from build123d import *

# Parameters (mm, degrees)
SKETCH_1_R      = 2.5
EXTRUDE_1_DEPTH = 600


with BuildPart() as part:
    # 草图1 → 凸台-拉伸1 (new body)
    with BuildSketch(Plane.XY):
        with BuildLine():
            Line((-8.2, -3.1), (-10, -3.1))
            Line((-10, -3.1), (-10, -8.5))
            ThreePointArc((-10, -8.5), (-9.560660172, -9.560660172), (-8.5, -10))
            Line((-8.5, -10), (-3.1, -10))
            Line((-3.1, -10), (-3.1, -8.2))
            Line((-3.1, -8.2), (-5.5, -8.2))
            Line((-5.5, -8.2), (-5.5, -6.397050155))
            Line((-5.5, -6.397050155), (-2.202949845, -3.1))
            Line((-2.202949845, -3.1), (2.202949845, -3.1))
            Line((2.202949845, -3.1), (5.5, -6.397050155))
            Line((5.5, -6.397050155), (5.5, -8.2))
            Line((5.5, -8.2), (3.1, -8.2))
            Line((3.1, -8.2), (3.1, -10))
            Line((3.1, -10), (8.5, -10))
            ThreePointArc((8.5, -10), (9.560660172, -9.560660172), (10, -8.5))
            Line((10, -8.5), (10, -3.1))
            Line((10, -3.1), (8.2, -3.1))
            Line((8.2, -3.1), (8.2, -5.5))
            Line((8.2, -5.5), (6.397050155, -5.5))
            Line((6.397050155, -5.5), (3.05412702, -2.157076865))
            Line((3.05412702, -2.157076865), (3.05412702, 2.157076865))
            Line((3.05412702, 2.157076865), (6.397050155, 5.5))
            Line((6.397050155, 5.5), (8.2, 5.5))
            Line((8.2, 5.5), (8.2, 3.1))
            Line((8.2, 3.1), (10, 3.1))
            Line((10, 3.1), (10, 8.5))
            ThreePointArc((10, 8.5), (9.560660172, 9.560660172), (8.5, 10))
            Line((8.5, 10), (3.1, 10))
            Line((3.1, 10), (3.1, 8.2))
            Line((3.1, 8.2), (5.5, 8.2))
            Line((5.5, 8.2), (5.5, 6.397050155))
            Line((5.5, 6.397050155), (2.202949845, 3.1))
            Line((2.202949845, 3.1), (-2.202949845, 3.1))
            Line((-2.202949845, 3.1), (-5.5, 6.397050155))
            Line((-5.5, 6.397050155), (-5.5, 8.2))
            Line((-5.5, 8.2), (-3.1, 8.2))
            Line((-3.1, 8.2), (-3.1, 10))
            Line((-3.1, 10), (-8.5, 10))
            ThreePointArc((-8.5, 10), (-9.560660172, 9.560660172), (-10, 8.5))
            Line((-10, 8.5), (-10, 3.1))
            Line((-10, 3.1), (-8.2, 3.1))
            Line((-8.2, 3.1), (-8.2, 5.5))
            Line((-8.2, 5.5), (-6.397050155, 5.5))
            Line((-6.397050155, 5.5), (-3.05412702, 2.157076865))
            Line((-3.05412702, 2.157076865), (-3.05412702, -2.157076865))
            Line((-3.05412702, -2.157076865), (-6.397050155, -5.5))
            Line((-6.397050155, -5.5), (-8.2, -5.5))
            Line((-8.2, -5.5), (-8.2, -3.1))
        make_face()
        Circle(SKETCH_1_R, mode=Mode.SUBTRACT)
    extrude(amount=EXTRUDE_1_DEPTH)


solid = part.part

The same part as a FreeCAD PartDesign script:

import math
import FreeCAD as App
import Part
import Sketcher

doc = App.newDocument("Part")
params = doc.addObject("Spreadsheet::Sheet", "Params")
for row, (alias, value) in enumerate([
    ("sketch1_diameter", "5 mm"),
    ("sketch1_radius", "1.5 mm"),
    ("sketch1_width", "1.8 mm"),
    ("sketch1_width2", "5.4 mm"),
    ("sketch1_width3", "2.4 mm"),
    ("pad1_length", "600 mm"),
], start=1):
    params.set(f"A{row}", alias)
    params.set(f"B{row}", "=" + value)
    params.setAlias(f"B{row}", alias)

body = doc.addObject("PartDesign::Body", "Body")

# Sketch on XY plane
sketch1 = body.newObject("Sketcher::SketchObject", "Sketch")
sketch1.AttachmentSupport = (doc.getObject("XY_Plane"), [""])
sketch1.MapMode = "FlatFace"
sketch1.addGeometry(Part.LineSegment(App.Vector(-8.2, -3.1, 0), App.Vector(-10, -3.1, 0)), False)
sketch1.addGeometry(Part.LineSegment(App.Vector(-10, -3.1, 0), App.Vector(-10, -8.5, 0)), False)
sketch1.addGeometry(Part.ArcOfCircle(Part.Circle(App.Vector(-8.5, -8.5, 0), App.Vector(0, 0, 1), 1.5), math.radians(180), math.radians(270)), False)
sketch1.addGeometry(Part.LineSegment(App.Vector(-8.5, -10, 0), App.Vector(-3.1, -10, 0)), False)
sketch1.addGeometry(Part.LineSegment(App.Vector(-3.1, -10, 0), App.Vector(-3.1, -8.2, 0)), False)
sketch1.addGeometry(Part.LineSegment(App.Vector(-3.1, -8.2, 0), App.Vector(-5.5, -8.2, 0)), False)
sketch1.addGeometry(Part.LineSegment(App.Vector(-5.5, -8.2, 0), App.Vector(-5.5, -6.4, 0)), False)
sketch1.addGeometry(Part.LineSegment(App.Vector(-5.5, -6.4, 0), App.Vector(-2.2, -3.1, 0)), False)
sketch1.addGeometry(Part.LineSegment(App.Vector(-2.2, -3.1, 0), App.Vector(2.2, -3.1, 0)), False)
sketch1.addGeometry(Part.LineSegment(App.Vector(2.2, -3.1, 0), App.Vector(5.5, -6.4, 0)), False)
sketch1.addGeometry(Part.LineSegment(App.Vector(5.5, -6.4, 0), App.Vector(5.5, -8.2, 0)), False)
sketch1.addGeometry(Part.LineSegment(App.Vector(5.5, -8.2, 0), App.Vector(3.1, -8.2, 0)), False)
sketch1.addGeometry(Part.LineSegment(App.Vector(3.1, -8.2, 0), App.Vector(3.1, -10, 0)), False)
sketch1.addGeometry(Part.LineSegment(App.Vector(3.1, -10, 0), App.Vector(8.5, -10, 0)), False)
sketch1.addGeometry(Part.ArcOfCircle(Part.Circle(App.Vector(8.5, -8.5, 0), App.Vector(0, 0, 1), 1.5), math.radians(-90), math.radians(0)), False)
sketch1.addGeometry(Part.LineSegment(App.Vector(10, -8.5, 0), App.Vector(10, -3.1, 0)), False)
sketch1.addGeometry(Part.LineSegment(App.Vector(10, -3.1, 0), App.Vector(8.2, -3.1, 0)), False)
sketch1.addGeometry(Part.LineSegment(App.Vector(8.2, -3.1, 0), App.Vector(8.2, -5.5, 0)), False)
sketch1.addGeometry(Part.LineSegment(App.Vector(8.2, -5.5, 0), App.Vector(6.4, -5.5, 0)), False)
sketch1.addGeometry(Part.LineSegment(App.Vector(6.4, -5.5, 0), App.Vector(3.1, -2.2, 0)), False)
sketch1.addGeometry(Part.LineSegment(App.Vector(3.1, -2.2, 0), App.Vector(3.1, 2.2, 0)), False)
sketch1.addGeometry(Part.LineSegment(App.Vector(3.1, 2.2, 0), App.Vector(6.4, 5.5, 0)), False)
sketch1.addGeometry(Part.LineSegment(App.Vector(6.4, 5.5, 0), App.Vector(8.2, 5.5, 0)), False)
sketch1.addGeometry(Part.LineSegment(App.Vector(8.2, 5.5, 0), App.Vector(8.2, 3.1, 0)), False)
sketch1.addGeometry(Part.LineSegment(App.Vector(8.2, 3.1, 0), App.Vector(10, 3.1, 0)), False)
sketch1.addGeometry(Part.LineSegment(App.Vector(10, 3.1, 0), App.Vector(10, 8.5, 0)), False)
sketch1.addGeometry(Part.ArcOfCircle(Part.Circle(App.Vector(8.5, 8.5, 0), App.Vector(0, 0, 1), 1.5), math.radians(0), math.radians(90)), False)
sketch1.addGeometry(Part.LineSegment(App.Vector(8.5, 10, 0), App.Vector(3.1, 10, 0)), False)
sketch1.addGeometry(Part.LineSegment(App.Vector(3.1, 10, 0), App.Vector(3.1, 8.2, 0)), False)
sketch1.addGeometry(Part.LineSegment(App.Vector(3.1, 8.2, 0), App.Vector(5.5, 8.2, 0)), False)
sketch1.addGeometry(Part.LineSegment(App.Vector(5.5, 8.2, 0), App.Vector(5.5, 6.4, 0)), False)
sketch1.addGeometry(Part.LineSegment(App.Vector(5.5, 6.4, 0), App.Vector(2.2, 3.1, 0)), False)
sketch1.addGeometry(Part.LineSegment(App.Vector(2.2, 3.1, 0), App.Vector(-2.2, 3.1, 0)), False)
sketch1.addGeometry(Part.LineSegment(App.Vector(-2.2, 3.1, 0), App.Vector(-5.5, 6.4, 0)), False)
sketch1.addGeometry(Part.LineSegment(App.Vector(-5.5, 6.4, 0), App.Vector(-5.5, 8.2, 0)), False)
sketch1.addGeometry(Part.LineSegment(App.Vector(-5.5, 8.2, 0), App.Vector(-3.1, 8.2, 0)), False)
sketch1.addGeometry(Part.LineSegment(App.Vector(-3.1, 8.2, 0), App.Vector(-3.1, 10, 0)), False)
sketch1.addGeometry(Part.LineSegment(App.Vector(-3.1, 10, 0), App.Vector(-8.5, 10, 0)), False)
sketch1.addGeometry(Part.ArcOfCircle(Part.Circle(App.Vector(-8.5, 8.5, 0), App.Vector(0, 0, 1), 1.5), math.radians(90), math.radians(180)), False)
sketch1.addGeometry(Part.LineSegment(App.Vector(-10, 8.5, 0), App.Vector(-10, 3.1, 0)), False)
sketch1.addGeometry(Part.LineSegment(App.Vector(-10, 3.1, 0), App.Vector(-8.2, 3.1, 0)), False)
sketch1.addGeometry(Part.LineSegment(App.Vector(-8.2, 3.1, 0), App.Vector(-8.2, 5.5, 0)), False)
sketch1.addGeometry(Part.LineSegment(App.Vector(-8.2, 5.5, 0), App.Vector(-6.4, 5.5, 0)), False)
sketch1.addGeometry(Part.LineSegment(App.Vector(-6.4, 5.5, 0), App.Vector(-3.1, 2.2, 0)), False)
sketch1.addGeometry(Part.LineSegment(App.Vector(-3.1, 2.2, 0), App.Vector(-3.1, -2.2, 0)), False)
sketch1.addGeometry(Part.LineSegment(App.Vector(-3.1, -2.2, 0), App.Vector(-6.4, -5.5, 0)), False)
sketch1.addGeometry(Part.LineSegment(App.Vector(-6.4, -5.5, 0), App.Vector(-8.2, -5.5, 0)), False)
sketch1.addGeometry(Part.LineSegment(App.Vector(-8.2, -5.5, 0), App.Vector(-8.2, -3.1, 0)), False)
sketch1.addGeometry(Part.Circle(App.Vector(0, 0, 0), App.Vector(0, 0, 1), 2.5), False)
sketch1.addConstraint(Sketcher.Constraint("Coincident", 0, 2, 1, 1))
sketch1.addConstraint(Sketcher.Constraint("Tangent", 1, 2, 2, 1))
sketch1.addConstraint(Sketcher.Constraint("Tangent", 2, 2, 3, 1))
sketch1.addConstraint(Sketcher.Constraint("Coincident", 3, 2, 4, 1))
sketch1.addConstraint(Sketcher.Constraint("Coincident", 4, 2, 5, 1))
sketch1.addConstraint(Sketcher.Constraint("Coincident", 5, 2, 6, 1))
sketch1.addConstraint(Sketcher.Constraint("Coincident", 6, 2, 7, 1))
sketch1.addConstraint(Sketcher.Constraint("Coincident", 7, 2, 8, 1))
sketch1.addConstraint(Sketcher.Constraint("Coincident", 8, 2, 9, 1))
sketch1.addConstraint(Sketcher.Constraint("Coincident", 9, 2, 10, 1))
sketch1.addConstraint(Sketcher.Constraint("Coincident", 10, 2, 11, 1))
sketch1.addConstraint(Sketcher.Constraint("Coincident", 11, 2, 12, 1))
sketch1.addConstraint(Sketcher.Constraint("Coincident", 12, 2, 13, 1))
sketch1.addConstraint(Sketcher.Constraint("Tangent", 13, 2, 14, 1))
sketch1.addConstraint(Sketcher.Constraint("Tangent", 14, 2, 15, 1))
sketch1.addConstraint(Sketcher.Constraint("Coincident", 15, 2, 16, 1))
sketch1.addConstraint(Sketcher.Constraint("Coincident", 16, 2, 17, 1))
sketch1.addConstraint(Sketcher.Constraint("Coincident", 17, 2, 18, 1))
sketch1.addConstraint(Sketcher.Constraint("Coincident", 18, 2, 19, 1))
sketch1.addConstraint(Sketcher.Constraint("Coincident", 19, 2, 20, 1))
sketch1.addConstraint(Sketcher.Constraint("Coincident", 20, 2, 21, 1))
sketch1.addConstraint(Sketcher.Constraint("Coincident", 21, 2, 22, 1))
sketch1.addConstraint(Sketcher.Constraint("Coincident", 22, 2, 23, 1))
sketch1.addConstraint(Sketcher.Constraint("Coincident", 23, 2, 24, 1))
sketch1.addConstraint(Sketcher.Constraint("Coincident", 24, 2, 25, 1))
sketch1.addConstraint(Sketcher.Constraint("Tangent", 25, 2, 26, 1))
sketch1.addConstraint(Sketcher.Constraint("Tangent", 26, 2, 27, 1))
sketch1.addConstraint(Sketcher.Constraint("Coincident", 27, 2, 28, 1))
sketch1.addConstraint(Sketcher.Constraint("Coincident", 28, 2, 29, 1))
sketch1.addConstraint(Sketcher.Constraint("Coincident", 29, 2, 30, 1))
sketch1.addConstraint(Sketcher.Constraint("Coincident", 30, 2, 31, 1))
sketch1.addConstraint(Sketcher.Constraint("Coincident", 31, 2, 32, 1))
sketch1.addConstraint(Sketcher.Constraint("Coincident", 32, 2, 33, 1))
sketch1.addConstraint(Sketcher.Constraint("Coincident", 33, 2, 34, 1))
sketch1.addConstraint(Sketcher.Constraint("Coincident", 34, 2, 35, 1))
sketch1.addConstraint(Sketcher.Constraint("Coincident", 35, 2, 36, 1))
sketch1.addConstraint(Sketcher.Constraint("Coincident", 36, 2, 37, 1))
sketch1.addConstraint(Sketcher.Constraint("Tangent", 37, 2, 38, 1))
sketch1.addConstraint(Sketcher.Constraint("Tangent", 38, 2, 39, 1))
sketch1.addConstraint(Sketcher.Constraint("Coincident", 39, 2, 40, 1))
sketch1.addConstraint(Sketcher.Constraint("Coincident", 40, 2, 41, 1))
sketch1.addConstraint(Sketcher.Constraint("Coincident", 41, 2, 42, 1))
sketch1.addConstraint(Sketcher.Constraint("Coincident", 42, 2, 43, 1))
sketch1.addConstraint(Sketcher.Constraint("Coincident", 43, 2, 44, 1))
sketch1.addConstraint(Sketcher.Constraint("Coincident", 44, 2, 45, 1))
sketch1.addConstraint(Sketcher.Constraint("Coincident", 45, 2, 46, 1))
sketch1.addConstraint(Sketcher.Constraint("Coincident", 46, 2, 47, 1))
sketch1.addConstraint(Sketcher.Constraint("Coincident", 47, 2, 0, 1))
sketch1.addConstraint(Sketcher.Constraint("Horizontal", 0))
sketch1.addConstraint(Sketcher.Constraint("Vertical", 1))
sketch1.addConstraint(Sketcher.Constraint("Horizontal", 3))
sketch1.addConstraint(Sketcher.Constraint("Vertical", 4))
sketch1.addConstraint(Sketcher.Constraint("Horizontal", 5))
sketch1.addConstraint(Sketcher.Constraint("Vertical", 6))
sketch1.addConstraint(Sketcher.Constraint("Horizontal", 8))
sketch1.addConstraint(Sketcher.Constraint("Vertical", 10))
sketch1.addConstraint(Sketcher.Constraint("Horizontal", 11))
sketch1.addConstraint(Sketcher.Constraint("Vertical", 12))
sketch1.addConstraint(Sketcher.Constraint("Horizontal", 13))
sketch1.addConstraint(Sketcher.Constraint("Vertical", 15))
sketch1.addConstraint(Sketcher.Constraint("Horizontal", 16))
sketch1.addConstraint(Sketcher.Constraint("Vertical", 17))
sketch1.addConstraint(Sketcher.Constraint("Horizontal", 18))
sketch1.addConstraint(Sketcher.Constraint("Vertical", 20))
sketch1.addConstraint(Sketcher.Constraint("Horizontal", 22))
sketch1.addConstraint(Sketcher.Constraint("Vertical", 23))
sketch1.addConstraint(Sketcher.Constraint("Horizontal", 24))
sketch1.addConstraint(Sketcher.Constraint("Vertical", 25))
sketch1.addConstraint(Sketcher.Constraint("Horizontal", 27))
sketch1.addConstraint(Sketcher.Constraint("Vertical", 28))
sketch1.addConstraint(Sketcher.Constraint("Horizontal", 29))
sketch1.addConstraint(Sketcher.Constraint("Vertical", 30))
sketch1.addConstraint(Sketcher.Constraint("Horizontal", 32))
sketch1.addConstraint(Sketcher.Constraint("Vertical", 34))
sketch1.addConstraint(Sketcher.Constraint("Horizontal", 35))
sketch1.addConstraint(Sketcher.Constraint("Vertical", 36))
sketch1.addConstraint(Sketcher.Constraint("Horizontal", 37))
sketch1.addConstraint(Sketcher.Constraint("Vertical", 39))
sketch1.addConstraint(Sketcher.Constraint("Horizontal", 40))
sketch1.addConstraint(Sketcher.Constraint("Vertical", 41))
sketch1.addConstraint(Sketcher.Constraint("Horizontal", 42))
sketch1.addConstraint(Sketcher.Constraint("Vertical", 44))
sketch1.addConstraint(Sketcher.Constraint("Horizontal", 46))
sketch1.addConstraint(Sketcher.Constraint("Vertical", 47))
sketch1.addConstraint(Sketcher.Constraint("Coincident", 48, 3, -1, 1))
sketch1.addConstraint(Sketcher.Constraint("Equal", 2, 14))
sketch1.addConstraint(Sketcher.Constraint("Equal", 14, 26))
sketch1.addConstraint(Sketcher.Constraint("Equal", 26, 38))
sketch1.addConstraint(Sketcher.Constraint("Symmetric", 2, 3, 26, 3, -1, 1))
sketch1.addConstraint(Sketcher.Constraint("Symmetric", 14, 3, 38, 3, -1, 1))
sketch1.addConstraint(Sketcher.Constraint("Symmetric", 4, 2, 28, 2, -1, 1))
sketch1.addConstraint(Sketcher.Constraint("Symmetric", 6, 2, 30, 2, -1, 1))
sketch1.addConstraint(Sketcher.Constraint("Symmetric", 7, 2, 31, 2, -1, 1))
sketch1.addConstraint(Sketcher.Constraint("Symmetric", 9, 2, 33, 2, -1, 1))
sketch1.addConstraint(Sketcher.Constraint("Symmetric", 11, 2, 35, 2, -1, 1))
sketch1.addConstraint(Sketcher.Constraint("Symmetric", 16, 2, 40, 2, -1, 1))
sketch1.addConstraint(Sketcher.Constraint("Symmetric", 18, 2, 42, 2, -1, 1))
sketch1.addConstraint(Sketcher.Constraint("Symmetric", 19, 2, 43, 2, -1, 1))
sketch1.addConstraint(Sketcher.Constraint("Symmetric", 21, 2, 45, 2, -1, 1))
sketch1.addConstraint(Sketcher.Constraint("Symmetric", 23, 2, 47, 2, -1, 1))
sketch1.addConstraint(Sketcher.Constraint("Symmetric", 2, 3, 14, 3, -2))
sketch1.addConstraint(Sketcher.Constraint("Symmetric", 6, 2, 9, 2, -2))
sketch1.addConstraint(Sketcher.Constraint("Symmetric", 4, 2, 11, 2, -2))
sketch1.addConstraint(Sketcher.Constraint("Symmetric", 23, 2, 40, 2, -2))
sketch1.addConstraint(Sketcher.Constraint("Symmetric", 21, 2, 42, 2, -2))
sketch1.addConstraint(Sketcher.Constraint("Perpendicular", 7, 9))
sketch1.addConstraint(Sketcher.Constraint("Parallel", 9, 19))
sketch1.addConstraint(Sketcher.Constraint("Perpendicular", 19, 21))
sketch1.addConstraint(Sketcher.Constraint("Perpendicular", 31, 33))
sketch1.addConstraint(Sketcher.Constraint("Perpendicular", 43, 45))
sketch1.addConstraint(Sketcher.Constraint("Horizontal", 0, 2, 7, 2))
sketch1.addConstraint(Sketcher.Constraint("Horizontal", 20, 2, 43, 2))
sketch1.addConstraint(Sketcher.Constraint("Equal", 37, 1))
sketch1.addConstraint(Sketcher.Constraint("Equal", 40, 4))
sketch1.addConstraint(Sketcher.Constraint("Equal", 46, 6))
sketch1.addConstraint(Sketcher.Constraint("Equal", 35, 17))
sketch1.addConstraint(Sketcher.Constraint("Diameter", 48, 5.0))
sketch1.addConstraint(Sketcher.Constraint("Radius", 2, 1.5))
sketch1.addConstraint(Sketcher.Constraint("DistanceX", 0, 2, 0, 1, 1.8))
sketch1.addConstraint(Sketcher.Constraint("DistanceX", 3, 1, 3, 2, 5.4))
sketch1.addConstraint(Sketcher.Constraint("DistanceX", 5, 2, 5, 1, 2.4))
sketch1.addConstraint(Sketcher.Constraint("DistanceX", 0, 2, -1, 1, 10.0))
sketch1.addConstraint(Sketcher.Constraint("DistanceY", 2, 2, -1, 1, 10.0))
sketch1.addConstraint(Sketcher.Constraint("DistanceX", 8, 1, 8, 2, 4.4059))
sketch1.addConstraint(Sketcher.Constraint("DistanceY", 20, 1, 20, 2, 4.314154))
sketch1.setExpression("Constraints[116]", "Params.sketch1_diameter")
sketch1.setExpression("Constraints[117]", "Params.sketch1_radius")
sketch1.setExpression("Constraints[118]", "Params.sketch1_width")
sketch1.setExpression("Constraints[119]", "Params.sketch1_width2")
sketch1.setExpression("Constraints[120]", "Params.sketch1_width3")
pad1 = body.newObject("PartDesign::Pad", "Pad")
pad1.Profile = sketch1
pad1.setExpression("Length", "Params.pad1_length")

doc.recompute()
